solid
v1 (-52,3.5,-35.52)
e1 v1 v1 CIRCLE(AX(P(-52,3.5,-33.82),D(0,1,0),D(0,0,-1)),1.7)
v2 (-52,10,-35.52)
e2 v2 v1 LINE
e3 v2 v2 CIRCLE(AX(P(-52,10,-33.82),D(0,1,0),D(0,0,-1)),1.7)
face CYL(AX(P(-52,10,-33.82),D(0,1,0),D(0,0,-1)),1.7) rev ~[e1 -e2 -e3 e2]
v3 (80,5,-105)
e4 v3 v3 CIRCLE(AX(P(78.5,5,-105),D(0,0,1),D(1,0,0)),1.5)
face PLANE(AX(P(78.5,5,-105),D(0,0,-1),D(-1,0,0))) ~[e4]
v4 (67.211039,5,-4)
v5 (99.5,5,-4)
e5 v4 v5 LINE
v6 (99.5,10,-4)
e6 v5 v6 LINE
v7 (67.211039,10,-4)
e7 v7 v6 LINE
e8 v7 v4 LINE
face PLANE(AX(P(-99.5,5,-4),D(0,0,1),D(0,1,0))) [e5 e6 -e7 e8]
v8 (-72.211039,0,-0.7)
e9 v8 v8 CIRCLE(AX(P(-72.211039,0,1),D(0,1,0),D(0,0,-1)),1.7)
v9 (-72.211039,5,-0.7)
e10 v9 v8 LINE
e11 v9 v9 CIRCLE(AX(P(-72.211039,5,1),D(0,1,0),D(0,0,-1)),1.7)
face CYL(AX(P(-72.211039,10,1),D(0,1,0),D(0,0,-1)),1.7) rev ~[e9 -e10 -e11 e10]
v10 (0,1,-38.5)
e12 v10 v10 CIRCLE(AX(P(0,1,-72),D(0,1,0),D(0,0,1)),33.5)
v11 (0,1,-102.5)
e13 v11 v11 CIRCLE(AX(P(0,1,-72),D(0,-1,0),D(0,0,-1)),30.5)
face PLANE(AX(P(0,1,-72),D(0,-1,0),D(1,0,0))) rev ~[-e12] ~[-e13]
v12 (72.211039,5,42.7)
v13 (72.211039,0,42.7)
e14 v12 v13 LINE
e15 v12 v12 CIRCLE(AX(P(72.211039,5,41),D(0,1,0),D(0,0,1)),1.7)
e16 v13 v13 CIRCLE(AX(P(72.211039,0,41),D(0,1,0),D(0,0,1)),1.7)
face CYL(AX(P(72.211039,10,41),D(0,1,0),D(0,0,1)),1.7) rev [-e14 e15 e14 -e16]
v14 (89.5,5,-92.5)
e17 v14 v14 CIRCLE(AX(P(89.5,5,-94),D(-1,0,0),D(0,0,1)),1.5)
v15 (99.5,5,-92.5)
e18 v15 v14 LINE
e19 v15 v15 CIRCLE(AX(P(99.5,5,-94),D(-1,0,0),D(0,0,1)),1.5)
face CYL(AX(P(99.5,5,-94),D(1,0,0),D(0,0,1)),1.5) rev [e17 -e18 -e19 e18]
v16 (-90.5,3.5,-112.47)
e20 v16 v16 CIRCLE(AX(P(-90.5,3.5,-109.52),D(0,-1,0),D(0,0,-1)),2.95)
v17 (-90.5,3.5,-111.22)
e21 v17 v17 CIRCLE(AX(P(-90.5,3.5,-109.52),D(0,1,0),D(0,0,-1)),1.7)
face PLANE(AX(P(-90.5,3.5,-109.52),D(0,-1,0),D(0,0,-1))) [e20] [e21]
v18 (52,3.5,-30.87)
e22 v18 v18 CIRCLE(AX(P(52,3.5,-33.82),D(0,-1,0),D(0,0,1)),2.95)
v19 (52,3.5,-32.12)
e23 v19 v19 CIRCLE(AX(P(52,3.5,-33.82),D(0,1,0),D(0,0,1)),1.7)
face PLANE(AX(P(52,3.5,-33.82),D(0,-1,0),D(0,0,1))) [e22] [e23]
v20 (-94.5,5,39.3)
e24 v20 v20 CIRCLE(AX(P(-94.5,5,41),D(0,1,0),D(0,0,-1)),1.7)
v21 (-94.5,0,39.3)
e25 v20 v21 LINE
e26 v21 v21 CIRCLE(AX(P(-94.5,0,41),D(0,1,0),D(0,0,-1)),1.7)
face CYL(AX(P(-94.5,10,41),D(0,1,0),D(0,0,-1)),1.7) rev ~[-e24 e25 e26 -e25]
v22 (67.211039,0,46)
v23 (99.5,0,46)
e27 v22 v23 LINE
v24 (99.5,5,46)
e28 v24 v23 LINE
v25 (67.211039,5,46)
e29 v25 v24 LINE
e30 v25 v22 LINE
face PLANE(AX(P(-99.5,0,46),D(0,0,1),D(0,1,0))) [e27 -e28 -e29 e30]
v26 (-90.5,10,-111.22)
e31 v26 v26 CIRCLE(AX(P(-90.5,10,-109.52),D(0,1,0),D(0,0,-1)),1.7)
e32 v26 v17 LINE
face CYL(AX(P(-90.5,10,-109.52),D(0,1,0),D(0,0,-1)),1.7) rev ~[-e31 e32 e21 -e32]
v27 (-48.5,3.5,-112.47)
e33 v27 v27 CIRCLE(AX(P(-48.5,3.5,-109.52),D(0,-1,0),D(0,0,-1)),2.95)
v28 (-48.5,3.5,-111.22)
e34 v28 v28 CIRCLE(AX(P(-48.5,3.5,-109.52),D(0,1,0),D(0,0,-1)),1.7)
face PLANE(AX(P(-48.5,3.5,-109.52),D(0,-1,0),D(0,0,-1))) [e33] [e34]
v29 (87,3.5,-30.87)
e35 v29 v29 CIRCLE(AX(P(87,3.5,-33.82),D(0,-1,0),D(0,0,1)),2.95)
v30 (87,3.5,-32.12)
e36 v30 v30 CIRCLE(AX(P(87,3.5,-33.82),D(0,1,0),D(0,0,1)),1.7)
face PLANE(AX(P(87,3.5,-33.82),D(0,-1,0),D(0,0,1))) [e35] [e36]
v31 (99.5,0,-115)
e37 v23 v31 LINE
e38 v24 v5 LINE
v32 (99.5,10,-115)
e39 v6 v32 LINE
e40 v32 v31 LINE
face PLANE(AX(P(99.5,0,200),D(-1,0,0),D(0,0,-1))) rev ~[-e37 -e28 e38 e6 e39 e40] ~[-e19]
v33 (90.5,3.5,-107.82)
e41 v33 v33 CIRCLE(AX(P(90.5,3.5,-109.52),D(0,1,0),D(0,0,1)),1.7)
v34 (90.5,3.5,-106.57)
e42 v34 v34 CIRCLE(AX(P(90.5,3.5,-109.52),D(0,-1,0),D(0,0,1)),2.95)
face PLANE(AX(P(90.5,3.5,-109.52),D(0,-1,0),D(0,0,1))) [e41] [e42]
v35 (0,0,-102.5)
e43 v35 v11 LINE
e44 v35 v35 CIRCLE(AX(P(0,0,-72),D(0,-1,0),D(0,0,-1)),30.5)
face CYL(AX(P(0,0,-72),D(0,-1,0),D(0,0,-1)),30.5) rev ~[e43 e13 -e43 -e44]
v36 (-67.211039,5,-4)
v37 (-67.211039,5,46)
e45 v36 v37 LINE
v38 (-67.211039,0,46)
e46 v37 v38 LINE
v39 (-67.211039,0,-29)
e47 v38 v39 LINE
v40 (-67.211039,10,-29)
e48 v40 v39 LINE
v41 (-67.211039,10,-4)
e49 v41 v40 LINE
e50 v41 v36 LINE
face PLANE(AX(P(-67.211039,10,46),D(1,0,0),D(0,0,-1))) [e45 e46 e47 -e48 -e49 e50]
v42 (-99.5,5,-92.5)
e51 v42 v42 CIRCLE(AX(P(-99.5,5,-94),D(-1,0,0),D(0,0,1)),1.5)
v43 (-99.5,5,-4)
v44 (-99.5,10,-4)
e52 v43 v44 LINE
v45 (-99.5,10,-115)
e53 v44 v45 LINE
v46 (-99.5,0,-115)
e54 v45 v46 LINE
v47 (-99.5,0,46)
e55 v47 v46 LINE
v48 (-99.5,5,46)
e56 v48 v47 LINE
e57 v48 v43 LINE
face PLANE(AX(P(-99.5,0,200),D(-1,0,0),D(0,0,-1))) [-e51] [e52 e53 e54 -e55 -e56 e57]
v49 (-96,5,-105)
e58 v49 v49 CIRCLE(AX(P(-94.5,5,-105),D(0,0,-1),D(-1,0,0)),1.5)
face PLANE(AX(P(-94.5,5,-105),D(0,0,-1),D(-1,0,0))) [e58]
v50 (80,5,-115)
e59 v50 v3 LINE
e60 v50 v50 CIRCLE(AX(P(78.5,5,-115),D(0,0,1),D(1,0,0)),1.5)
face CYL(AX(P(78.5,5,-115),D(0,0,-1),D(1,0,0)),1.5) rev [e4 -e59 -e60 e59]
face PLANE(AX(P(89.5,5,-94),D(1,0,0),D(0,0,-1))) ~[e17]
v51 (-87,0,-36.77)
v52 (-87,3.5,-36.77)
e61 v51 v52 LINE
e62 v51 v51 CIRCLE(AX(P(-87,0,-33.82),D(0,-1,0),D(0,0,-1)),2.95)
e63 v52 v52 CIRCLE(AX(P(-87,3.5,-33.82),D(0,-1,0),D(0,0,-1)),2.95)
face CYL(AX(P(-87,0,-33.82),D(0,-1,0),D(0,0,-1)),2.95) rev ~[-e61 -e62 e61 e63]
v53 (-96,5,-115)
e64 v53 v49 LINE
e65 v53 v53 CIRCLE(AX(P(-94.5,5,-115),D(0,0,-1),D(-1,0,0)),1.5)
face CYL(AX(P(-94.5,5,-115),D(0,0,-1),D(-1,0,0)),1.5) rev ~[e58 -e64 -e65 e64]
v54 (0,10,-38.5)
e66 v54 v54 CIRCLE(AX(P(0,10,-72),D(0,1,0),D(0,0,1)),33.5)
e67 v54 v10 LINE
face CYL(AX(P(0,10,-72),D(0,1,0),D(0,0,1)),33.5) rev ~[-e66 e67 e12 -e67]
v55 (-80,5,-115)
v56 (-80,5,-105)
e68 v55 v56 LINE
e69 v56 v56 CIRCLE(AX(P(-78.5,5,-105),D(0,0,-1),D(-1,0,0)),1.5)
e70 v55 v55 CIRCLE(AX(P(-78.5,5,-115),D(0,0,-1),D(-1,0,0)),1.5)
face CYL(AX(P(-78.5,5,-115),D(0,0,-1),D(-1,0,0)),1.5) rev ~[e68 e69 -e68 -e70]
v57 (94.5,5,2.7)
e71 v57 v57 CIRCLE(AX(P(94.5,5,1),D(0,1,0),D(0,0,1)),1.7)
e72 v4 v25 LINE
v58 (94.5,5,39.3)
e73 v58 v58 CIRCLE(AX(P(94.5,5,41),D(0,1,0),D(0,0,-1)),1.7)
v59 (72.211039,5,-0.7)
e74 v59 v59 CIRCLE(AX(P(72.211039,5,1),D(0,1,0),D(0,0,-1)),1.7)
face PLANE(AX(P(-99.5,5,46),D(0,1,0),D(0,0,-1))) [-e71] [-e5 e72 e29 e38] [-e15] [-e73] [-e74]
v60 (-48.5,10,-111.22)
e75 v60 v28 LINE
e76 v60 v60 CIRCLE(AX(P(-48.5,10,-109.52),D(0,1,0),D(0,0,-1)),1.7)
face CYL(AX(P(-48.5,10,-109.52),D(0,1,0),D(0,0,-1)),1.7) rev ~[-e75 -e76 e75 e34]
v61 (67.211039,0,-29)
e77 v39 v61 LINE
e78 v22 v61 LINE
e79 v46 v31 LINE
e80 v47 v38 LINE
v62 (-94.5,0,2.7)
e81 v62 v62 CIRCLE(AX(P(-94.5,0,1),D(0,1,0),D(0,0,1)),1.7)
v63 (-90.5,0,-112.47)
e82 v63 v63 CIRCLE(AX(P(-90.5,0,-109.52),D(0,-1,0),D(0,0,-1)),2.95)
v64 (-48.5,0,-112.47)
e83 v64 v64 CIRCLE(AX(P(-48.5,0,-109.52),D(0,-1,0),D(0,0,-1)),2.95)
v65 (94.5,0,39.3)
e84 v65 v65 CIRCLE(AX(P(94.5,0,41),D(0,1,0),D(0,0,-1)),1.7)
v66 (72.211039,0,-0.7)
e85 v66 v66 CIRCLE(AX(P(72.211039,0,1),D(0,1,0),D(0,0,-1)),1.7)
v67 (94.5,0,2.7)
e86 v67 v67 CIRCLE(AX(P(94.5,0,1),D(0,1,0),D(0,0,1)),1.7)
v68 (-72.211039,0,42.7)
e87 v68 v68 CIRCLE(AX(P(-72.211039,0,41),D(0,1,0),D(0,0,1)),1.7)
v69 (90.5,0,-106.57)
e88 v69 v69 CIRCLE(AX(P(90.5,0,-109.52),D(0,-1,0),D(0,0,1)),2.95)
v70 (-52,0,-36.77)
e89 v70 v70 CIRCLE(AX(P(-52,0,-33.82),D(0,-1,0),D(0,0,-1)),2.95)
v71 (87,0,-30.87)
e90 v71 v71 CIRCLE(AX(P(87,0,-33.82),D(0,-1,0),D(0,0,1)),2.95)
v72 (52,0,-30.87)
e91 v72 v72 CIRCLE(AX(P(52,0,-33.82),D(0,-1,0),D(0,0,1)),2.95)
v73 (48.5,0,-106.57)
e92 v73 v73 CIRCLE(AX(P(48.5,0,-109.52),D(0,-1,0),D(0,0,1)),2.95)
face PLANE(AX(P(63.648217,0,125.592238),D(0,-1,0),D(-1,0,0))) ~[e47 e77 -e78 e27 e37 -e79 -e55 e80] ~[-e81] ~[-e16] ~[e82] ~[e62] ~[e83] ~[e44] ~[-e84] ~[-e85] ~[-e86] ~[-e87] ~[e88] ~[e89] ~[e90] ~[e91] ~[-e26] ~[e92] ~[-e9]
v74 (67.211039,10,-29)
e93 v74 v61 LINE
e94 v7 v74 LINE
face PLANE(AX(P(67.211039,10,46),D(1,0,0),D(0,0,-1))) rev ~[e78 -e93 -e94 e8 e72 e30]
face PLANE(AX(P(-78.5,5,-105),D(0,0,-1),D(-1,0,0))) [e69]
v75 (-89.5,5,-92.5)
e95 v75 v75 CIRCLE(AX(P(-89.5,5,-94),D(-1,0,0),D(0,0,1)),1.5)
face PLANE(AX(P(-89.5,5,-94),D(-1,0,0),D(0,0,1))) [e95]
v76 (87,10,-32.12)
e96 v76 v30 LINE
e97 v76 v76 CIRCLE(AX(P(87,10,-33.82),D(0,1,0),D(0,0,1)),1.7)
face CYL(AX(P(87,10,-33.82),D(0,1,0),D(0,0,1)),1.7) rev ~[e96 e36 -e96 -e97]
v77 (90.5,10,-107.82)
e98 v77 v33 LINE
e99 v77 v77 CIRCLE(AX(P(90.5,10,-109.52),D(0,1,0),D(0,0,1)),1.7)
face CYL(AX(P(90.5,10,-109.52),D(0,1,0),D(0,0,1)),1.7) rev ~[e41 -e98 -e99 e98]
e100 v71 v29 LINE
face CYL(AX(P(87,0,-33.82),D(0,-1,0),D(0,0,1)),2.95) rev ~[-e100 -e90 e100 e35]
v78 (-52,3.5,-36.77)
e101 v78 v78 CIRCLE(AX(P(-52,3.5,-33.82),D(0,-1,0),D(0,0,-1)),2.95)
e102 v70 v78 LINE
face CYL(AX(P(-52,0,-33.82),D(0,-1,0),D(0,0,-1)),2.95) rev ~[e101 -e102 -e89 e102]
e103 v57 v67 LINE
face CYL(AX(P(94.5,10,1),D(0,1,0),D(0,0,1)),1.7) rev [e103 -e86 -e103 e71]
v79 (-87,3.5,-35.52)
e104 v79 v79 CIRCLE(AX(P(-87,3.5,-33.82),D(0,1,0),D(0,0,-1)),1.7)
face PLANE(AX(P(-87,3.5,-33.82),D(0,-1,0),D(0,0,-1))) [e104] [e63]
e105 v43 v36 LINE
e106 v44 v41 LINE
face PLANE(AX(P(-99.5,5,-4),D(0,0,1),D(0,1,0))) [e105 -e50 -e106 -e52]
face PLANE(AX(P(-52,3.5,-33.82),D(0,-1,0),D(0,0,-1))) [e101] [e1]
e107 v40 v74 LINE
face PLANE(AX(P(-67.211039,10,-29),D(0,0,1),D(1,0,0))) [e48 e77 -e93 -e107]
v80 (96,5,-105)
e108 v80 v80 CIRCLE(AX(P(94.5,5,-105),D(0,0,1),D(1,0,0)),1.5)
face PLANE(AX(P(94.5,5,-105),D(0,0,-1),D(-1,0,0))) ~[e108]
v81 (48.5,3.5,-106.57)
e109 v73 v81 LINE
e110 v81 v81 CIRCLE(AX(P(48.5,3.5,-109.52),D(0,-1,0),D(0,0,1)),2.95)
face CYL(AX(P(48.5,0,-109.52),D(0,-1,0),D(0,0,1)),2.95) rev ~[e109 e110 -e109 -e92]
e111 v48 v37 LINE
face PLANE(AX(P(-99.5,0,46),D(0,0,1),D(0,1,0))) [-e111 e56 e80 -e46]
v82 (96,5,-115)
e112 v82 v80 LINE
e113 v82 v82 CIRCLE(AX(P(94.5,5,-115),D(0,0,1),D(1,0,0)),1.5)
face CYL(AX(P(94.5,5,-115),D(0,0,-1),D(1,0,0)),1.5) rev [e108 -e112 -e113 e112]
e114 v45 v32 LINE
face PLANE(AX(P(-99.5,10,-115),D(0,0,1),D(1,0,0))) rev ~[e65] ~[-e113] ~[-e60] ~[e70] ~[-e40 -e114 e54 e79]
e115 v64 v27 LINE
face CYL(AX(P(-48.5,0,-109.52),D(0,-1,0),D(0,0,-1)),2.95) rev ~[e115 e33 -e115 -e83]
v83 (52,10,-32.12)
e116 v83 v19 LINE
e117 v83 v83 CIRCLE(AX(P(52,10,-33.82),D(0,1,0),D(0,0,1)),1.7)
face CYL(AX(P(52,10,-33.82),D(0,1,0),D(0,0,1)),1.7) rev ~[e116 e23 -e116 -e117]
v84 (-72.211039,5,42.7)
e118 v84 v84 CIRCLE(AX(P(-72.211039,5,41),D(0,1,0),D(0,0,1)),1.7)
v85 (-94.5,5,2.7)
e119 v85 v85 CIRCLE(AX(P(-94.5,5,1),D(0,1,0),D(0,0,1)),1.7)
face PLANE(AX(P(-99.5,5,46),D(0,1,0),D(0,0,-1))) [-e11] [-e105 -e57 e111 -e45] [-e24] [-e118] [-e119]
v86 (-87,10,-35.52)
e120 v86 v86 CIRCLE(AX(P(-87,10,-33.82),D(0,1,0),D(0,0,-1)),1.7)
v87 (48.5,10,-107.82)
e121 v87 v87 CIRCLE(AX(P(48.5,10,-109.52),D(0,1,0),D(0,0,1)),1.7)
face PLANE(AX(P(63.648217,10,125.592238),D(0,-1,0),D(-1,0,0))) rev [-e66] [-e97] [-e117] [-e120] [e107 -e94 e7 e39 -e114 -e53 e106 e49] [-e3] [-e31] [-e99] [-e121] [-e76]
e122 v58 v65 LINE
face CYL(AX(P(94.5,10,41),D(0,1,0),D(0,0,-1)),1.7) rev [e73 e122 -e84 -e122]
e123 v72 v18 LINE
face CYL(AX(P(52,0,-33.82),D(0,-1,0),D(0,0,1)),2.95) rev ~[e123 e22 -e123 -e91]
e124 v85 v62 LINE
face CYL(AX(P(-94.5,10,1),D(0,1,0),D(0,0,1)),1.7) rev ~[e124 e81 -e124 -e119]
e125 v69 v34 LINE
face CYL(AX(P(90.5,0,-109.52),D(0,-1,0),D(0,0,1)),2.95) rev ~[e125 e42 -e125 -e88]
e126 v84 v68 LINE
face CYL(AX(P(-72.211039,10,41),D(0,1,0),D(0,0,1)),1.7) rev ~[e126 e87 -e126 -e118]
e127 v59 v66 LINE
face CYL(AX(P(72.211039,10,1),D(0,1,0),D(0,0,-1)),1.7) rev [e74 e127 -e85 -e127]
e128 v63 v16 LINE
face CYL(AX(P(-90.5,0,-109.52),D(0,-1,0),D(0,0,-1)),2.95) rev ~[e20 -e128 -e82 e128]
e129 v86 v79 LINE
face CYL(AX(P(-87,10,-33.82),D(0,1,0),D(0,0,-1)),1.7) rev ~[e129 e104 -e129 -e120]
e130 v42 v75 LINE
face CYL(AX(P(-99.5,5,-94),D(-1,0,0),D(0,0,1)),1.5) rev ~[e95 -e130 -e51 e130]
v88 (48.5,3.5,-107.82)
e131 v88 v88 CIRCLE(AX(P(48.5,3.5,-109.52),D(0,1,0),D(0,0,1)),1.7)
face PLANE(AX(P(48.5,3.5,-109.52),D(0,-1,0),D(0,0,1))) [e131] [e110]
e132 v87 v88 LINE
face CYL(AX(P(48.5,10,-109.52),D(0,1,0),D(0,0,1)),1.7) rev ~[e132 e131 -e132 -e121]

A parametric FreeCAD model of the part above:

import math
import FreeCAD as App
import Part
import Sketcher
from FreeCAD import Vector
Q = App.Units.Quantity


def add_polygon(sketch, points):
    """Adds a closed chain of lines whose ends are joined by coincident constraints."""
    first, n = sketch.GeometryCount, len(points)
    for a, b in zip(points, points[1:] + points[:1]):
        sketch.addGeometry(Part.LineSegment(App.Vector(*a, 0), App.Vector(*b, 0)), False)
    for i in range(n):
        sketch.addConstraint(Sketcher.Constraint("Coincident", first + i, 2, first + (i + 1) % n, 1))

doc = App.newDocument("Part")
params = doc.addObject("Spreadsheet::Sheet", "Params")
for row, (alias, value) in enumerate([
    ("sketch1_width", "199 mm"),
    ("sketch1_height", "400 mm"),
    ("pad1_length", "10 mm"),
    ("sketch2_width", "199 mm"),
    ("sketch2_height", "154 mm"),
    ("sketch2_height2", "85 mm"),
    ("sketch2_width2", "81.5 mm"),
    ("pocket1_length", "10 mm"),
    ("sketch3_diameter", "3.4 mm"),
    ("pocket3_length", "4 mm"),
    ("sketch5_width", "35 mm"),
    ("sketch5_height", "7 mm"),
    ("pocket4_length", "5 mm"),
    ("sketch6_height", "7 mm"),
    ("pocket5_length", "35 mm"),
    ("sketch7_diameter", "3.4 mm"),
    ("sketch8_height", "75 mm"),
    ("pad2_length", "10 mm"),
    ("sketch11_diameter", "3.4 mm"),
    ("sketch12_width", "5 mm"),
    ("sketch12_height", "50 mm"),
    ("sketch13_diameter", "67 mm"),
    ("sketch14_diameter", "61 mm"),
    ("pad3_length", "1 mm"),
    ("sketch15_diameter", "3 mm"),
    ("pocket12_length", "10 mm"),
    ("sketch16_diameter", "3 mm"),
    ("pocket13_length", "10 mm"),
    ("sketch17_diameter", "5.9 mm"),
    ("pocket14_length", "3.5 mm"),
], start=1):
    params.set(f"A{row}", alias)
    params.set(f"B{row}", "=" + value)
    params.setAlias(f"B{row}", alias)

body = doc.addObject("PartDesign::Body", "Body")

# Sketch on XZ plane
sketch1 = doc.addObject("Sketcher::SketchObject", "Sketch")
body.addObject(sketch1)
sketch1.AttachmentSupport = (doc.XZ_Plane, [""])
sketch1.MapMode = "FlatFace"
add_polygon(sketch1, [(-99.5, -200), (-99.5, 200), (99.5, 200), (99.5, -200)])  # lines 0-3
sketch1.addConstraint([
    Sketcher.Constraint("Vertical", 0),
    Sketcher.Constraint("Horizontal", 1),
    Sketcher.Constraint("Vertical", 2),
    Sketcher.Constraint("Horizontal", 3),
    Sketcher.Constraint("Symmetric", 0, 2, 2, 2, -1, 1),
    Sketcher.Constraint("DistanceX", 1, 1, 1, 2, 199.0),
    Sketcher.Constraint("DistanceY", 0, 1, 0, 2, 400.0),
])
sketch1.setExpression("Constraints[9]", "Params.sketch1_width")
sketch1.setExpression("Constraints[10]", "Params.sketch1_height")
pad1 = doc.addObject("PartDesign::Pad", "Pad")
body.addObject(pad1)
pad1.Profile = sketch1
pad1.setExpression("Length", "Params.pad1_length")
pad1.Reversed = True

# Sketch on XZ plane
sketch2 = doc.addObject("Sketcher::SketchObject", "Sketch001")
body.addObject(sketch2)
sketch2.AttachmentSupport = (doc.XZ_Plane, [""])
sketch2.MapMode = "FlatFace"
sketch2.AttachmentOffset = App.Placement(Vector(0, 0, -10), App.Rotation())
add_polygon(sketch2, [(18, 200), (99.5, 200), (99.5, 46)])  # lines 0-2
add_polygon(sketch2, [(-18, 200), (-99.5, 46), (-99.5, 200)])  # lines 3-5
add_polygon(sketch2, [(-99.5, -200), (-99.5, -115), (99.5, -115), (99.5, -200)])  # lines 6-9
add_polygon(sketch2, [(67.211039, 46), (-67.211039, 46), (-2.646104, 168), (2.646104, 168)])  # lines 10-13
sketch2.addConstraint([
    Sketcher.Constraint("Horizontal", 0),
    Sketcher.Constraint("Vertical", 1),
    Sketcher.Constraint("Vertical", 4),
    Sketcher.Constraint("Horizontal", 5),
    Sketcher.Constraint("Vertical", 6),
    Sketcher.Constraint("Horizontal", 7),
    Sketcher.Constraint("Vertical", 8),
    Sketcher.Constraint("Horizontal", 9),
    Sketcher.Constraint("Horizontal", 10),
    Sketcher.Constraint("Horizontal", 12),
    Sketcher.Constraint("Symmetric", 4, 2, 8, 2, -1, 1),
    Sketcher.Constraint("Symmetric", 0, 2, 9, 2, -1, 1),
    Sketcher.Constraint("Symmetric", 1, 2, 3, 2, -2),
    Sketcher.Constraint("Parallel", 3, 11),
    Sketcher.Constraint("Parallel", 2, 13),
    Sketcher.Constraint("Horizontal", 3, 2, 10, 2),
    Sketcher.Constraint("Equal", 0, 5),
    Sketcher.Constraint("DistanceX", 7, 1, 7, 2, 199.0),
    Sketcher.Constraint("DistanceY", 1, 2, 1, 1, 154.0),
    Sketcher.Constraint("DistanceY", 6, 1, 6, 2, 85.0),
    Sketcher.Constraint("DistanceX", 0, 1, 0, 2, 81.5),
    Sketcher.Constraint("DistanceY", -1, 1, 0, 2, 200.0),
    Sketcher.Constraint("DistanceY", -1, 1, 11, 2, 168.0),
    Sketcher.Constraint("DistanceX", 10, 2, 10, 1, 134.422078),
    Sketcher.Constraint("DistanceX", 10, 2, -1, 1, 67.211039),
])
sketch2.setExpression("Constraints[31]", "Params.sketch2_width")
sketch2.setExpression("Constraints[32]", "Params.sketch2_height")
sketch2.setExpression("Constraints[33]", "Params.sketch2_height2")
sketch2.setExpression("Constraints[34]", "Params.sketch2_width2")
pocket1 = doc.addObject("PartDesign::Pocket", "Pocket")
body.addObject(pocket1)
pocket1.Profile = sketch2
pocket1.setExpression("Length", "Params.pocket1_length")
pocket1.Reversed = True

# Sketch on XZ plane
sketch3 = doc.addObject("Sketcher::SketchObject", "Sketch002")
body.addObject(sketch3)
sketch3.AttachmentSupport = (doc.XZ_Plane, [""])
sketch3.MapMode = "FlatFace"
sketch3.AttachmentOffset = App.Placement(Vector(0, 0, -10), App.Rotation())
sketch3.addGeometry([
    Part.Circle(Vector(-11, 195, 0), Vector(0, 0, 1), 1.7),
    Part.Circle(Vector(-11, 178.18, 0), Vector(0, 0, 1), 1.7),
    Part.Circle(Vector(11, 195, 0), Vector(0, 0, 1), 1.7),
    Part.Circle(Vector(11, 178.18, 0), Vector(0, 0, 1), 1.7),
], False)
sketch3.addConstraint([
    Sketcher.Constraint("Equal", 0, 1),
    Sketcher.Constraint("Equal", 1, 2),
    Sketcher.Constraint("Equal", 2, 3),
    Sketcher.Constraint("Symmetric", 0, 3, 2, 3, -2),
    Sketcher.Constraint("Symmetric", 1, 3, 3, 3, -2),
    Sketcher.Constraint("Vertical", 0, 3, 1, 3),
    Sketcher.Constraint("Diameter", 0, 3.4),
    Sketcher.Constraint("DistanceX", 0, 3, -1, 1, 11.0),
    Sketcher.Constraint("DistanceY", -1, 1, 0, 3, 195.0),
    Sketcher.Constraint("DistanceY", -1, 1, 1, 3, 178.18),
])
sketch3.setExpression("Constraints[6]", "Params.sketch3_diameter")
pocket2 = doc.addObject("PartDesign::Pocket", "Pocket001")
body.addObject(pocket2)
pocket2.Profile = sketch3
pocket2.Type = "ThroughAll"
pocket2.Reversed = True

# Sketch on XZ plane
sketch4 = doc.addObject("Sketcher::SketchObject", "Sketch003")
body.addObject(sketch4)
sketch4.AttachmentSupport = (doc.XZ_Plane, [""])
sketch4.MapMode = "FlatFace"
add_polygon(sketch4, [(-8.05, 196.703183), (-11, 198.406367), (-13.95, 196.703183), (-13.95, 193.296817), (-11, 191.593633), (-8.05, 193.296817)])  # lines 0-5
add_polygon(sketch4, [(11, 198.406367), (8.05, 196.703183), (8.05, 193.296817), (11, 191.593633), (13.95, 193.296817), (13.95, 196.703183)])  # lines 6-11
add_polygon(sketch4, [(-8.05, 176.476817), (-8.05, 179.883183), (-11, 181.586367), (-13.95, 179.883183), (-13.95, 176.476817), (-11, 174.773633)])  # lines 12-17
add_polygon(sketch4, [(8.05, 179.883183), (8.05, 176.476817), (11, 174.773633), (13.95, 176.476817), (13.95, 179.883183), (11, 181.586367)])  # lines 18-23
sketch4.addConstraint([
    Sketcher.Constraint("Vertical", 2),
    Sketcher.Constraint("Vertical", 5),
    Sketcher.Constraint("Vertical", 7),
    Sketcher.Constraint("Vertical", 10),
    Sketcher.Constraint("Vertical", 12),
    Sketcher.Constraint("Vertical", 15),
    Sketcher.Constraint("Vertical", 18),
    Sketcher.Constraint("Vertical", 21),
    Sketcher.Constraint("Symmetric", 5, 2, 6, 2, -2),
    Sketcher.Constraint("Symmetric", 3, 2, 8, 2, -2),
    Sketcher.Constraint("Symmetric", 2, 2, 9, 2, -2),
    Sketcher.Constraint("Symmetric", 0, 2, 11, 2, -2),
    Sketcher.Constraint("Symmetric", 17, 2, 18, 2, -2),
    Sketcher.Constraint("Symmetric", 16, 2, 19, 2, -2),
    Sketcher.Constraint("Symmetric", 15, 2, 20, 2, -2),
    Sketcher.Constraint("Symmetric", 13, 2, 22, 2, -2),
    Sketcher.Constraint("Parallel", 0, 3),
    Sketcher.Constraint("Parallel", 1, 4),
    Sketcher.Constraint("Parallel", 4, 6),
    Sketcher.Constraint("Parallel", 3, 8),
    Sketcher.Constraint("Parallel", 8, 11),
    Sketcher.Constraint("Parallel", 11, 13),
    Sketcher.Constraint("Parallel", 9, 14),
    Sketcher.Constraint("Parallel", 13, 16),
    Sketcher.Constraint("Parallel", 14, 17),
    Sketcher.Constraint("Parallel", 19, 22),
    Sketcher.Constraint("Parallel", 20, 23),
    Sketcher.Constraint("Horizontal", 2, 2, 4, 2),
    Sketcher.Constraint("Horizontal", 1, 2, 5, 2),
    Sketcher.Constraint("Horizontal", 12, 2, 14, 2),
    Sketcher.Constraint("Horizontal", 15, 2, 17, 2),
    Sketcher.Constraint("Vertical", 5, 2, 12, 2),
    Sketcher.Constraint("Vertical", 3, 2, 13, 2),
    Sketcher.Constraint("Equal", 10, 12),
    Sketcher.Constraint("Angle", 0, Q("150 deg")),
    Sketcher.Constraint("DistanceX", 0, 2, -1, 1, 11.0),
    Sketcher.Constraint("DistanceX", 2, 2, 4, 2, 5.9),
    Sketcher.Constraint("DistanceY", 12, 2, 5, 2, 16.82),
    Sketcher.Constraint("DistanceY", 2, 2, 2, 1, 3.406367),
    Sketcher.Constraint("DistanceY", -1, 1, 0, 2, 198.406367),
])
pocket3 = doc.addObject("PartDesign::Pocket", "Pocket002")
body.addObject(pocket3)
pocket3.Profile = sketch4
pocket3.setExpression("Length", "Params.pocket3_length")

# Sketch on XZ plane
sketch5 = doc.addObject("Sketcher::SketchObject", "Sketch004")
body.addObject(sketch5)
sketch5.AttachmentSupport = (doc.XZ_Plane, [""])
sketch5.MapMode = "FlatFace"
add_polygon(sketch5, [(-17.5, 190.09), (-17.5, 183.09), (17.5, 183.09), (17.5, 190.09)])  # lines 0-3
sketch5.addConstraint([
    Sketcher.Constraint("Vertical", 0),
    Sketcher.Constraint("Horizontal", 1),
    Sketcher.Constraint("Vertical", 2),
    Sketcher.Constraint("Horizontal", 3),
    Sketcher.Constraint("DistanceX", 1, 1, 1, 2, 35.0),
    Sketcher.Constraint("DistanceY", 0, 2, 0, 1, 7.0),
    Sketcher.Constraint("DistanceX", 0, 2, -1, 1, 17.5),
    Sketcher.Constraint("DistanceY", -1, 1, 0, 2, 183.09),
])
sketch5.setExpression("Constraints[8]", "Params.sketch5_width")
sketch5.setExpression("Constraints[9]", "Params.sketch5_height")
pocket4 = doc.addObject("PartDesign::Pocket", "Pocket003")
body.addObject(pocket4)
pocket4.Profile = sketch5
pocket4.setExpression("Length", "Params.pocket4_length")

# Sketch on YZ plane
sketch6 = doc.addObject("Sketcher::SketchObject", "Sketch005")
body.addObject(sketch6)
sketch6.AttachmentSupport = (doc.YZ_Plane, [""])
sketch6.MapMode = "FlatFace"
sketch6.AttachmentOffset = App.Placement(Vector(0, 0, 17.5), App.Rotation())
add_polygon(sketch6, [(8.5, 186.59), (5, 183.09), (5, 190.09)])  # lines 0-2
sketch6.addConstraint([
    Sketcher.Constraint("Vertical", 1),
    Sketcher.Constraint("Perpendicular", 0, 2),
    Sketcher.Constraint("Equal", 0, 2),
    Sketcher.Constraint("DistanceY", 1, 1, 1, 2, 7.0),
    Sketcher.Constraint("DistanceX", -1, 1, 0, 2, 5.0),
    Sketcher.Constraint("DistanceY", -1, 1, 0, 2, 183.09),
])
sketch6.setExpression("Constraints[6]", "Params.sketch6_height")
pocket5 = doc.addObject("PartDesign::Pocket", "Pocket004")
body.addObject(pocket5)
pocket5.Profile = sketch6
pocket5.setExpression("Length", "Params.pocket5_length")

# Sketch on XZ plane
sketch7 = doc.addObject("Sketcher::SketchObject", "Sketch006")
body.addObject(sketch7)
sketch7.AttachmentSupport = (doc.XZ_Plane, [""])
sketch7.MapMode = "FlatFace"
sketch7.AttachmentOffset = App.Placement(Vector(0, 0, -10), App.Rotation())
sketch7.addGeometry([
    Part.Circle(Vector(90.5, -109.52, 0), Vector(0, 0, 1), 1.7),  # 0
    Part.Circle(Vector(48.5, -109.52, 0), Vector(0, 0, 1), 1.7),  # 1
    Part.Circle(Vector(-48.5, -109.52, 0), Vector(0, 0, 1), 1.7),  # 2
    Part.Circle(Vector(-90.5, -109.52, 0), Vector(0, 0, 1), 1.7),  # 3
    Part.Circle(Vector(87, -33.82, 0), Vector(0, 0, 1), 1.7),  # 4
    Part.Circle(Vector(52, -33.82, 0), Vector(0, 0, 1), 1.7),  # 5
    Part.Circle(Vector(-87, -33.82, 0), Vector(0, 0, 1), 1.7),  # 6
    Part.Circle(Vector(-52, -33.82, 0), Vector(0, 0, 1), 1.7),  # 7
], False)
sketch7.addConstraint([
    Sketcher.Constraint("Equal", 0, 1),
    Sketcher.Constraint("Equal", 1, 2),
    Sketcher.Constraint("Equal", 2, 3),
    Sketcher.Constraint("Equal", 3, 4),
    Sketcher.Constraint("Equal", 4, 5),
    Sketcher.Constraint("Equal", 5, 6),
    Sketcher.Constraint("Equal", 6, 7),
    Sketcher.Constraint("Symmetric", 1, 3, 2, 3, -2),
    Sketcher.Constraint("Symmetric", 0, 3, 3, 3, -2),
    Sketcher.Constraint("Symmetric", 4, 3, 6, 3, -2),
    Sketcher.Constraint("Symmetric", 5, 3, 7, 3, -2),
    Sketcher.Constraint("Horizontal", 0, 3, 1, 3),
    Sketcher.Constraint("Horizontal", 4, 3, 5, 3),
    Sketcher.Constraint("Diameter", 0, 3.4),
    Sketcher.Constraint("DistanceX", -1, 1, 4, 3, 87.0),
    Sketcher.Constraint("DistanceX", -1, 1, 5, 3, 52.0),
    Sketcher.Constraint("DistanceX", 1, 3, 0, 3, 42.0),
    Sketcher.Constraint("DistanceX", 2, 3, 1, 3, 97.0),
    Sketcher.Constraint("DistanceY", 0, 3, 4, 3, 75.7),
    Sketcher.Constraint("DistanceY", 0, 3, -1, 1, 109.52),
])
sketch7.setExpression("Constraints[13]", "Params.sketch7_diameter")
pocket6 = doc.addObject("PartDesign::Pocket", "Pocket005")
body.addObject(pocket6)
pocket6.Profile = sketch7
pocket6.Type = "ThroughAll"
pocket6.Reversed = True

# Sketch on XZ plane
sketch8 = doc.addObject("Sketcher::SketchObject", "Sketch007")
body.addObject(sketch8)
sketch8.AttachmentSupport = (doc.XZ_Plane, [""])
sketch8.MapMode = "FlatFace"
sketch8.AttachmentOffset = App.Placement(Vector(0, 0, -10), App.Rotation())
add_polygon(sketch8, [(-67.211039, -29), (-67.211039, 46), (67.211039, 46), (67.211039, -29)])  # lines 0-3
sketch8.addConstraint([
    Sketcher.Constraint("Vertical", 0),
    Sketcher.Constraint("Horizontal", 1),
    Sketcher.Constraint("Vertical", 2),
    Sketcher.Constraint("Horizontal", 3),
    Sketcher.Constraint("DistanceY", 0, 1, 0, 2, 75.0),
    Sketcher.Constraint("DistanceY", -1, 1, 0, 2, 46.0),
    Sketcher.Constraint("DistanceX", 1, 1, 1, 2, 134.422078),
    Sketcher.Constraint("DistanceX", 0, 2, -1, 1, 67.211039),
])
sketch8.setExpression("Constraints[8]", "Params.sketch8_height")
pocket7 = doc.addObject("PartDesign::Pocket", "Pocket006")
body.addObject(pocket7)
pocket7.Profile = sketch8
pocket7.Type = "ThroughAll"
pocket7.Reversed = True

# Sketch on XZ plane
sketch9 = doc.addObject("Sketcher::SketchObject", "Sketch008")
body.addObject(sketch9)
sketch9.AttachmentSupport = (doc.XZ_Plane, [""])
sketch9.MapMode = "FlatFace"
sketch9.AttachmentOffset = App.Placement(Vector(0, 0, -10), App.Rotation())
sketch9.addGeometry([
    Part.LineSegment(Vector(-2.646104, 168, 0), Vector(-67.211039, 46, 0)),
    Part.ArcOfCircle(Part.Circle(Vector(60.076909, 56.721126, 0), Vector(0, 0, 1), 127.738656), math.radians(119.408046), math.radians(184.814508)),
], False)
sketch9.addConstraint([
    Sketcher.Constraint("Coincident", 0, 1, 1, 1),
    Sketcher.Constraint("Coincident", 1, 2, 0, 2),
    Sketcher.Constraint("DistanceY", -1, 1, 0, 1, 168.0),
    Sketcher.Constraint("DistanceY", -1, 1, 1, 2, 46.0),
    Sketcher.Constraint("Radius", 1, 127.738656),
    Sketcher.Constraint("DistanceX", -1, 1, 1, 3, 60.076909),
    Sketcher.Constraint("DistanceX", 1, 2, -1, 1, 67.211039),
])
pocket8 = doc.addObject("PartDesign::Pocket", "Pocket007")
body.addObject(pocket8)
pocket8.Profile = sketch9
pocket8.Type = "ThroughAll"
pocket8.Reversed = True

# Sketch on XZ plane
sketch10 = doc.addObject("Sketcher::SketchObject", "Sketch009")
body.addObject(sketch10)
sketch10.AttachmentSupport = (doc.XZ_Plane, [""])
sketch10.MapMode = "FlatFace"
sketch10.AttachmentOffset = App.Placement(Vector(0, 0, -10), App.Rotation())
sketch10.addGeometry([
    Part.LineSegment(Vector(-18, 200, 0), Vector(-99.5, 46, 0)),
    Part.ArcOfCircle(Part.Circle(Vector(114.444932, 31.341643, 0), Vector(0, 0, 1), 214.4465), math.radians(128.142027), math.radians(176.080527)),
], False)
sketch10.addConstraint([
    Sketcher.Constraint("Coincident", 0, 1, 1, 1),
    Sketcher.Constraint("Coincident", 1, 2, 0, 2),
    Sketcher.Constraint("DistanceX", 0, 1, -1, 1, 18.0),
    Sketcher.Constraint("DistanceY", -1, 1, 0, 1, 200.0),
    Sketcher.Constraint("DistanceY", -1, 1, 1, 2, 46.0),
    Sketcher.Constraint("DistanceX", 1, 2, -1, 1, 99.5),
    Sketcher.Constraint("Radius", 1, 214.4465),
])
pad2 = doc.addObject("PartDesign::Pad", "Pad001")
body.addObject(pad2)
pad2.Profile = sketch10
pad2.setExpression("Length", "Params.pad2_length")
doc.recompute()

mirrored = doc.addObject("PartDesign::Mirrored", "Mirrored")
body.addObject(mirrored)
mirrored.Originals = [pocket8, pad2]
mirrored.MirrorPlane = (doc.YZ_Plane, [""])
body.Tip = mirrored

# Sketch on XZ plane
sketch11 = doc.addObject("Sketcher::SketchObject", "Sketch010")
body.addObject(sketch11)
sketch11.AttachmentSupport = (doc.XZ_Plane, [""])
sketch11.MapMode = "FlatFace"
sketch11.AttachmentOffset = App.Placement(Vector(0, 0, -10), App.Rotation())
sketch11.addGeometry([
    Part.Circle(Vector(-94.5, 1, 0), Vector(0, 0, 1), 1.7),
    Part.Circle(Vector(-72.211039, 1, 0), Vector(0, 0, 1), 1.7),
    Part.Circle(Vector(-72.211039, 41, 0), Vector(0, 0, 1), 1.7),
    Part.Circle(Vector(-94.5, 41, 0), Vector(0, 0, 1), 1.7),
], False)
sketch11.addConstraint([
    Sketcher.Constraint("Equal", 0, 1),
    Sketcher.Constraint("Equal", 1, 2),
    Sketcher.Constraint("Equal", 2, 3),
    Sketcher.Constraint("Horizontal", 0, 3, 1, 3),
    Sketcher.Constraint("Horizontal", 2, 3, 3, 3),
    Sketcher.Constraint("Vertical", 1, 3, 2, 3),
    Sketcher.Constraint("Vertical", 0, 3, 3, 3),
    Sketcher.Constraint("Diameter", 0, 3.4),
    Sketcher.Constraint("DistanceY", -1, 1, 0, 3, 1.0),
    Sketcher.Constraint("DistanceY", -1, 1, 2, 3, 41.0),
    Sketcher.Constraint("DistanceX", 0, 3, -1, 1, 94.5),
    Sketcher.Constraint("DistanceX", 1, 3, -1, 1, 72.211039),
])
sketch11.setExpression("Constraints[7]", "Params.sketch11_diameter")
pocket9 = doc.addObject("PartDesign::Pocket", "Pocket008")
body.addObject(pocket9)
pocket9.Profile = sketch11
pocket9.Type = "ThroughAll"
pocket9.Reversed = True
doc.recompute()

mirrored2 = doc.addObject("PartDesign::Mirrored", "Mirrored001")
body.addObject(mirrored2)
mirrored2.Originals = [pocket9]
mirrored2.MirrorPlane = (doc.YZ_Plane, [""])
body.Tip = mirrored2

# Sketch on YZ plane
sketch12 = doc.addObject("Sketcher::SketchObject", "Sketch011")
body.addObject(sketch12)
sketch12.AttachmentSupport = (doc.YZ_Plane, [""])
sketch12.MapMode = "FlatFace"
sketch12.AttachmentOffset = App.Placement(Vector(0, 0, -99.5), App.Rotation())
add_polygon(sketch12, [(13.101487, -4), (5, -4), (5, 46), (0, 46), (-60.284782, 91.241488), (-41.037631, 242.997216), (82.546277, 200.684563)])  # lines 0-6
sketch12.addConstraint([
    Sketcher.Constraint("Horizontal", 0),
    Sketcher.Constraint("Vertical", 1),
    Sketcher.Constraint("Horizontal", 2),
    Sketcher.Constraint("PointOnObject", 2, 2, -2),
    Sketcher.Constraint("DistanceX", 2, 2, 2, 1, 5.0),
    Sketcher.Constraint("DistanceY", 1, 1, 1, 2, 50.0),
    Sketcher.Constraint("DistanceY", 0, 2, -1, 1, 4.0),
    Sketcher.Constraint("Distance", 3, 75.372722),
    Sketcher.Constraint("Distance", 5, 130.626732),
    Sketcher.Constraint("Distance", 6, 216.144279),
    Sketcher.Constraint("DistanceX", 0, 2, 0, 1, 8.101487),
    Sketcher.Constraint("DistanceX", 4, 2, -1, 1, 41.037631),
    Sketcher.Constraint("DistanceX", 3, 2, 4, 2, 19.247151),
    Sketcher.Constraint("DistanceY", 3, 2, 4, 2, 151.755729),
])
sketch12.setExpression("Constraints[11]", "Params.sketch12_width")
sketch12.setExpression("Constraints[12]", "Params.sketch12_height")
pocket10 = doc.addObject("PartDesign::Pocket", "Pocket009")
body.addObject(pocket10)
pocket10.Profile = sketch12
pocket10.Type = "ThroughAll"
pocket10.Reversed = True

# Sketch on XZ plane
sketch13 = doc.addObject("Sketcher::SketchObject", "Sketch012")
body.addObject(sketch13)
sketch13.AttachmentSupport = (doc.XZ_Plane, [""])
sketch13.MapMode = "FlatFace"
sketch13.AttachmentOffset = App.Placement(Vector(0, 0, -10), App.Rotation())
sketch13.addGeometry(Part.Circle(Vector(0, -72, 0), Vector(0, 0, 1), 33.5), False)
sketch13.addConstraint([
    Sketcher.Constraint("PointOnObject", 0, 3, -2),
    Sketcher.Constraint("Diameter", 0, 67.0),
    Sketcher.Constraint("DistanceY", 0, 3, -1, 1, 72.0),
])
sketch13.setExpression("Constraints[1]", "Params.sketch13_diameter")
pocket11 = doc.addObject("PartDesign::Pocket", "Pocket010")
body.addObject(pocket11)
pocket11.Profile = sketch13
pocket11.Type = "ThroughAll"
pocket11.Reversed = True

# Sketch on XZ plane
sketch14 = doc.addObject("Sketcher::SketchObject", "Sketch013")
body.addObject(sketch14)
sketch14.AttachmentSupport = (doc.XZ_Plane, [""])
sketch14.MapMode = "FlatFace"
sketch14.addGeometry([
    Part.Circle(Vector(0, -72, 0), Vector(0, 0, 1), 36.006256),
    Part.Circle(Vector(0, -72, 0), Vector(0, 0, 1), 30.5),
], False)
sketch14.addConstraint([
    Sketcher.Constraint("Coincident", 1, 3, 0, 3),
    Sketcher.Constraint("PointOnObject", 0, 3, -2),
    Sketcher.Constraint("Diameter", 1, 61.0),
    Sketcher.Constraint("DistanceY", 0, 3, -1, 1, 72.0),
    Sketcher.Constraint("Diameter", 0, 72.012512),
])
sketch14.setExpression("Constraints[2]", "Params.sketch14_diameter")
pad3 = doc.addObject("PartDesign::Pad", "Pad002")
body.addObject(pad3)
pad3.Profile = sketch14
pad3.setExpression("Length", "Params.pad3_length")
pad3.Reversed = True

# Sketch on YZ plane
sketch15 = doc.addObject("Sketcher::SketchObject", "Sketch014")
body.addObject(sketch15)
sketch15.AttachmentSupport = (doc.YZ_Plane, [""])
sketch15.MapMode = "FlatFace"
sketch15.AttachmentOffset = App.Placement(Vector(0, 0, -99.5), App.Rotation())
sketch15.addGeometry(Part.Circle(Vector(5, -94, 0), Vector(0, 0, 1), 1.5), False)
sketch15.addConstraint([
    Sketcher.Constraint("Diameter", 0, 3.0),
    Sketcher.Constraint("DistanceX", -1, 1, 0, 3, 5.0),
    Sketcher.Constraint("DistanceY", 0, 3, -1, 1, 94.0),
])
sketch15.setExpression("Constraints[0]", "Params.sketch15_diameter")
pocket12 = doc.addObject("PartDesign::Pocket", "Pocket011")
body.addObject(pocket12)
pocket12.Profile = sketch15
pocket12.setExpression("Length", "Params.pocket12_length")
pocket12.Reversed = True

# Sketch on XY plane
sketch16 = doc.addObject("Sketcher::SketchObject", "Sketch015")
body.addObject(sketch16)
sketch16.AttachmentSupport = (doc.XY_Plane, [""])
sketch16.MapMode = "FlatFace"
sketch16.AttachmentOffset = App.Placement(Vector(0, 0, -115), App.Rotation())
sketch16.addGeometry([
    Part.Circle(Vector(-94.5, 5, 0), Vector(0, 0, 1), 1.5),
    Part.Circle(Vector(-78.5, 5, 0), Vector(0, 0, 1), 1.5),
], False)
sketch16.addConstraint([
    Sketcher.Constraint("Equal", 0, 1),
    Sketcher.Constraint("Horizontal", 0, 3, 1, 3),
    Sketcher.Constraint("Diameter", 0, 3.0),
    Sketcher.Constraint("DistanceY", -1, 1, 0, 3, 5.0),
    Sketcher.Constraint("DistanceX", 0, 3, 1, 3, 16.0),
    Sketcher.Constraint("DistanceX", 0, 3, -1, 1, 94.5),
])
sketch16.setExpression("Constraints[2]", "Params.sketch16_diameter")
pocket13 = doc.addObject("PartDesign::Pocket", "Pocket012")
body.addObject(pocket13)
pocket13.Profile = sketch16
pocket13.setExpression("Length", "Params.pocket13_length")
pocket13.Reversed = True
doc.recompute()

mirrored3 = doc.addObject("PartDesign::Mirrored", "Mirrored002")
body.addObject(mirrored3)
mirrored3.Originals = [pocket12, pocket13]
mirrored3.MirrorPlane = (doc.YZ_Plane, [""])
body.Tip = mirrored3

# Sketch on XZ plane
sketch17 = doc.addObject("Sketcher::SketchObject", "Sketch016")
body.addObject(sketch17)
sketch17.AttachmentSupport = (doc.XZ_Plane, [""])
sketch17.MapMode = "FlatFace"
sketch17.addGeometry([
    Part.Circle(Vector(-90.5, -109.52, 0), Vector(0, 0, 1), 2.95),  # 0
    Part.Circle(Vector(-48.5, -109.52, 0), Vector(0, 0, 1), 2.95),  # 1
    Part.Circle(Vector(-87, -33.82, 0), Vector(0, 0, 1), 2.95),  # 2
    Part.Circle(Vector(-52, -33.82, 0), Vector(0, 0, 1), 2.95),  # 3
    Part.Circle(Vector(52, -33.82, 0), Vector(0, 0, 1), 2.95),  # 4
    Part.Circle(Vector(87, -33.82, 0), Vector(0, 0, 1), 2.95),  # 5
    Part.Circle(Vector(48.5, -109.52, 0), Vector(0, 0, 1), 2.95),  # 6
    Part.Circle(Vector(90.5, -109.52, 0), Vector(0, 0, 1), 2.95),  # 7
], False)
sketch17.addConstraint([
    Sketcher.Constraint("Equal", 0, 1),
    Sketcher.Constraint("Equal", 1, 2),
    Sketcher.Constraint("Equal", 2, 3),
    Sketcher.Constraint("Equal", 3, 4),
    Sketcher.Constraint("Equal", 4, 5),
    Sketcher.Constraint("Equal", 5, 6),
    Sketcher.Constraint("Equal", 6, 7),
    Sketcher.Constraint("Symmetric", 3, 3, 4, 3, -2),
    Sketcher.Constraint("Symmetric", 2, 3, 5, 3, -2),
    Sketcher.Constraint("Symmetric", 1, 3, 6, 3, -2),
    Sketcher.Constraint("Symmetric", 0, 3, 7, 3, -2),
    Sketcher.Constraint("Horizontal", 0, 3, 1, 3),
    Sketcher.Constraint("Horizontal", 2, 3, 3, 3),
    Sketcher.Constraint("Diameter", 0, 5.9),
    Sketcher.Constraint("DistanceX", 2, 3, -1, 1, 87.0),
    Sketcher.Constraint("DistanceX", 3, 3, -1, 1, 52.0),
    Sketcher.Constraint("DistanceX", 0, 3, 1, 3, 42.0),
    Sketcher.Constraint("DistanceX", 1, 3, 6, 3, 97.0),
    Sketcher.Constraint("DistanceY", 0, 3, 2, 3, 75.7),
    Sketcher.Constraint("DistanceY", 0, 3, -1, 1, 109.52),
])
sketch17.setExpression("Constraints[13]", "Params.sketch17_diameter")
pocket14 = doc.addObject("PartDesign::Pocket", "Pocket013")
body.addObject(pocket14)
pocket14.Profile = sketch17
pocket14.setExpression("Length", "Params.pocket14_length")

doc.recompute()
